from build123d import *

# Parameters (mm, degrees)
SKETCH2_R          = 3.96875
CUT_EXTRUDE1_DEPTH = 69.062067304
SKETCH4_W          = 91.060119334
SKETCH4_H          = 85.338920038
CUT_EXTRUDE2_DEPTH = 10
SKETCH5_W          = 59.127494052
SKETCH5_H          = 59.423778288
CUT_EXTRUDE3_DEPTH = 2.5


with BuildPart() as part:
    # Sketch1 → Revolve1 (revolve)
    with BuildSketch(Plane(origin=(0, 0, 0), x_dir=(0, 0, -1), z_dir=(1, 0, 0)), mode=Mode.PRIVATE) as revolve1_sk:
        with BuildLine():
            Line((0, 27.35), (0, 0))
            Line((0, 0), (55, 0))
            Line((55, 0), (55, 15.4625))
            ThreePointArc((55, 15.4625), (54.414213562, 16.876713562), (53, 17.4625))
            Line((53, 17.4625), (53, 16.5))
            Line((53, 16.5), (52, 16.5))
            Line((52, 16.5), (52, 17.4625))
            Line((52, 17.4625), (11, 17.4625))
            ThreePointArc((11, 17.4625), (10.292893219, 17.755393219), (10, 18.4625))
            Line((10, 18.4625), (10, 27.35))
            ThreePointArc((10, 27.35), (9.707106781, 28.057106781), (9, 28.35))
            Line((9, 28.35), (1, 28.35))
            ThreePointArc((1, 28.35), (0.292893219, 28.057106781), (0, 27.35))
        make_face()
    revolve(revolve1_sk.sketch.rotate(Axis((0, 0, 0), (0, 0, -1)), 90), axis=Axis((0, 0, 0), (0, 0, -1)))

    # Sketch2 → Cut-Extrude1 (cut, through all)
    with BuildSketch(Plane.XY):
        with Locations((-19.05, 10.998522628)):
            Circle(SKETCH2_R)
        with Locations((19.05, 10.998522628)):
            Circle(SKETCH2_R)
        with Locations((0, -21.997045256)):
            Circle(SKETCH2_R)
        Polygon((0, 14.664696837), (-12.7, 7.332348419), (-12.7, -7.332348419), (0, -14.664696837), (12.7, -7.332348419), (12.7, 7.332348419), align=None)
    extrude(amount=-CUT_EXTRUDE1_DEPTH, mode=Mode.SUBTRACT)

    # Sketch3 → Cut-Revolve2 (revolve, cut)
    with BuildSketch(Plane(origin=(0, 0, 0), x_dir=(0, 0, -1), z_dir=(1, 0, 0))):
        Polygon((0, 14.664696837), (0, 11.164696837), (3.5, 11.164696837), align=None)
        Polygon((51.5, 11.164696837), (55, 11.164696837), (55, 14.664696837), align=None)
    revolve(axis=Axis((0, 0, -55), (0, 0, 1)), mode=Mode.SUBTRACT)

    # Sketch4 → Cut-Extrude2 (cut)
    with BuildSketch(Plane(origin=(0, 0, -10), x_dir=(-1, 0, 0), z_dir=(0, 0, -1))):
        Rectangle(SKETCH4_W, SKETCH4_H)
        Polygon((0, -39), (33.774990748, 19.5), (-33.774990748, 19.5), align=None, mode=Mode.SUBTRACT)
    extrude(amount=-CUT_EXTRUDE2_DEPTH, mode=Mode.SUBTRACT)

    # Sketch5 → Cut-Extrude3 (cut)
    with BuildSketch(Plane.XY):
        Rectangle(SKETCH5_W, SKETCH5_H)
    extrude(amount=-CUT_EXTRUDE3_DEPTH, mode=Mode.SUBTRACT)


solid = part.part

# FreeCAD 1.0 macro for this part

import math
import FreeCAD as App
import Part
import Sketcher

V = App.Vector
Q = App.Units.Quantity

doc = App.newDocument("Part")
body = doc.addObject("PartDesign::Body", "Body")

# Sketch on YZ plane
sketch1 = doc.addObject("Sketcher::SketchObject", "Sketch")
body.addObject(sketch1)
sketch1.AttachmentSupport = (doc.YZ_Plane, [""])
sketch1.MapMode = "FlatFace"
sketch1.addGeometry(Part.LineSegment(V(27.4, 0, 0), V(0, 0, 0)), False)
sketch1.addGeometry(Part.LineSegment(V(0, 0, 0), V(0, -55, 0)), False)
sketch1.addGeometry(Part.LineSegment(V(0, -55, 0), V(15.5, -55, 0)), False)
sketch1.addGeometry(Part.ArcOfCircle(Part.Circle(V(15.5, -53, 0), V(0, 0, 1), 2), math.radians(-90), math.radians(0)), False)
sketch1.addGeometry(Part.LineSegment(V(17.5, -53, 0), V(16.5, -53, 0)), False)
sketch1.addGeometry(Part.LineSegment(V(16.5, -53, 0), V(16.5, -52, 0)), False)
sketch1.addGeometry(Part.LineSegment(V(16.5, -52, 0), V(17.5, -52, 0)), False)
sketch1.addGeometry(Part.LineSegment(V(17.5, -52, 0), V(17.5, -11, 0)), False)
sketch1.addGeometry(Part.ArcOfCircle(Part.Circle(V(18.5, -11, 0), V(0, 0, 1), 1), math.radians(90), math.radians(180)), False)
sketch1.addGeometry(Part.LineSegment(V(18.5, -10, 0), V(27.4, -10, 0)), False)
sketch1.addGeometry(Part.ArcOfCircle(Part.Circle(V(27.3, -9, 0), V(0, 0, 1), 1), math.radians(-90), math.radians(0)), False)
sketch1.addGeometry(Part.LineSegment(V(28.4, -9, 0), V(28.4, -1, 0)), False)
sketch1.addGeometry(Part.ArcOfCircle(Part.Circle(V(27.3, -1, 0), V(0, 0, 1), 1), math.radians(0), math.radians(90)), False)
sketch1.addConstraint(Sketcher.Constraint("Coincident", 0, 2, 1, 1))
sketch1.addConstraint(Sketcher.Constraint("Coincident", 1, 2, 2, 1))
sketch1.addConstraint(Sketcher.Constraint("Tangent", 2, 2, 3, 1))
sketch1.addConstraint(Sketcher.Constraint("Coincident", 3, 2, 4, 1))
sketch1.addConstraint(Sketcher.Constraint("Coincident", 4, 2, 5, 1))
sketch1.addConstraint(Sketcher.Constraint("Coincident", 5, 2, 6, 1))
sketch1.addConstraint(Sketcher.Constraint("Coincident", 6, 2, 7, 1))
sketch1.addConstraint(Sketcher.Constraint("Tangent", 7, 2, 8, 2))
sketch1.addConstraint(Sketcher.Constraint("Tangent", 8, 1, 9, 1))
sketch1.addConstraint(Sketcher.Constraint("Tangent", 9, 2, 10, 1))
sketch1.addConstraint(Sketcher.Constraint("Tangent", 10, 2, 11, 1))
sketch1.addConstraint(Sketcher.Constraint("Tangent", 11, 2, 12, 1))
sketch1.addConstraint(Sketcher.Constraint("Tangent", 12, 2, 0, 1))
sketch1.addConstraint(Sketcher.Constraint("Horizontal", 0))
sketch1.addConstraint(Sketcher.Constraint("Vertical", 1))
sketch1.addConstraint(Sketcher.Constraint("Horizontal", 2))
sketch1.addConstraint(Sketcher.Constraint("Horizontal", 4))
sketch1.addConstraint(Sketcher.Constraint("Vertical", 5))
sketch1.addConstraint(Sketcher.Constraint("Horizontal", 6))
sketch1.addConstraint(Sketcher.Constraint("Vertical", 7))
sketch1.addConstraint(Sketcher.Constraint("Horizontal", 9))
sketch1.addConstraint(Sketcher.Constraint("Vertical", 11))
sketch1.addConstraint(Sketcher.Constraint("Coincident", 0, 2, -1, 1))
sketch1.addConstraint(Sketcher.Constraint("Equal", 8, 10))
sketch1.addConstraint(Sketcher.Constraint("Equal", 10, 12))
sketch1.addConstraint(Sketcher.Constraint("Vertical", 3, 2, 6, 2))
sketch1.addConstraint(Sketcher.Constraint("Radius", 3, Q("2 mm")))
sketch1.addConstraint(Sketcher.Constraint("Radius", 8, Q("1 mm")))
sketch1.addConstraint(Sketcher.Constraint("DistanceY", 1, 2, 1, 1, Q("55 mm")))
sketch1.addConstraint(Sketcher.Constraint("DistanceY", 5, 1, 5, 2, Q("1 mm")))
sketch1.addConstraint(Sketcher.Constraint("DistanceY", 7, 1, 7, 2, Q("41 mm")))
sketch1.addConstraint(Sketcher.Constraint("DistanceY", 11, 1, 11, 2, Q("8 mm")))
sketch1.addConstraint(Sketcher.Constraint("DistanceX", 0, 2, 0, 1, Q("27.35 mm")))
sketch1.addConstraint(Sketcher.Constraint("DistanceX", -1, 1, 4, 2, Q("16.5 mm")))
sketch1.addConstraint(Sketcher.Constraint("DistanceX", 2, 1, 2, 2, Q("15.4625 mm")))
revolution = doc.addObject("PartDesign::Revolution", "Revolution")
body.addObject(revolution)
revolution.Profile = sketch1
revolution.ReferenceAxis = (sketch1, ["V_Axis"])
revolution.Angle = 360

# Sketch on XY plane
sketch2 = doc.addObject("Sketcher::SketchObject", "Sketch001")
body.addObject(sketch2)
sketch2.AttachmentSupport = (doc.XY_Plane, [""])
sketch2.MapMode = "FlatFace"
sketch2.addGeometry(Part.Circle(V(-19.1, 11, 0), V(0, 0, 1), 4), False)
sketch2.addGeometry(Part.Circle(V(19.1, 11, 0), V(0, 0, 1), 4), False)
sketch2.addGeometry(Part.Circle(V(0, -22, 0), V(0, 0, 1), 4), False)
sketch2.addGeometry(Part.LineSegment(V(0, 14.7, 0), V(-12.7, 7.3, 0)), False)
sketch2.addGeometry(Part.LineSegment(V(-12.7, 7.3, 0), V(-12.7, -7.3, 0)), False)
sketch2.addGeometry(Part.LineSegment(V(-12.7, -7.3, 0), V(0, -14.7, 0)), False)
sketch2.addGeometry(Part.LineSegment(V(0, -14.7, 0), V(12.7, -7.3, 0)), False)
sketch2.addGeometry(Part.LineSegment(V(12.7, -7.3, 0), V(12.7, 7.3, 0)), False)
sketch2.addGeometry(Part.LineSegment(V(12.7, 7.3, 0), V(0, 14.7, 0)), False)
sketch2.addConstraint(Sketcher.Constraint("Coincident", 3, 2, 4, 1))
sketch2.addConstraint(Sketcher.Constraint("Coincident", 4, 2, 5, 1))
sketch2.addConstraint(Sketcher.Constraint("Coincident", 5, 2, 6, 1))
sketch2.addConstraint(Sketcher.Constraint("Coincident", 6, 2, 7, 1))
sketch2.addConstraint(Sketcher.Constraint("Coincident", 7, 2, 8, 1))
sketch2.addConstraint(Sketcher.Constraint("Coincident", 8, 2, 3, 1))
sketch2.addConstraint(Sketcher.Constraint("Vertical", 4))
sketch2.addConstraint(Sketcher.Constraint("Vertical", 7))
sketch2.addConstraint(Sketcher.Constraint("Equal", 0, 1))
sketch2.addConstraint(Sketcher.Constraint("Equal", 1, 2))
sketch2.addConstraint(Sketcher.Constraint("Symmetric", 3, 2, 6, 2, -1, 1))
sketch2.addConstraint(Sketcher.Constraint("Symmetric", 5, 2, 8, 2, -1, 1))
sketch2.addConstraint(Sketcher.Constraint("Symmetric", 0, 3, 1, 3, -2))
sketch2.addConstraint(Sketcher.Constraint("PointOnObject", 2, 3, -2))
sketch2.addConstraint(Sketcher.Constraint("PointOnObject", 5, 2, -2))
sketch2.addConstraint(Sketcher.Constraint("Parallel", 5, 8))
sketch2.addConstraint(Sketcher.Constraint("Horizontal", 4, 2, 6, 2))
sketch2.addConstraint(Sketcher.Constraint("Angle", 3, Q("-150 deg")))
sketch2.addConstraint(Sketcher.Constraint("Diameter", 0, Q("7.9375 mm")))
sketch2.addConstraint(Sketcher.Constraint("DistanceX", 3, 2, -1, 1, Q("12.7 mm")))
sketch2.addConstraint(Sketcher.Constraint("DistanceX", 0, 3, 1, 3, Q("38.1 mm")))
sketch2.addConstraint(Sketcher.Constraint("DistanceY", 4, 2, 4, 1, Q("14.664697 mm")))
sketch2.addConstraint(Sketcher.Constraint("DistanceY", 4, 2, 0, 3, Q("18.330871 mm")))
sketch2.addConstraint(Sketcher.Constraint("DistanceY", 2, 3, 5, 2, Q("7.332348 mm")))
pocket1 = doc.addObject("PartDesign::Pocket", "Pocket")
body.addObject(pocket1)
pocket1.Profile = sketch2
pocket1.Type = "ThroughAll"

# Sketch on YZ plane
sketch3 = doc.addObject("Sketcher::SketchObject", "Sketch002")
body.addObject(sketch3)
sketch3.AttachmentSupport = (doc.YZ_Plane, [""])
sketch3.MapMode = "FlatFace"
sketch3.addGeometry(Part.LineSegment(V(14.7, 0, 0), V(11.2, 0, 0)), False)
sketch3.addGeometry(Part.LineSegment(V(11.2, 0, 0), V(11.2, -3.5, 0)), False)
sketch3.addGeometry(Part.LineSegment(V(11.2, -3.5, 0), V(14.7, 0, 0)), False)
sketch3.addGeometry(Part.LineSegment(V(11.2, -51.5, 0), V(11.2, -55, 0)), False)
sketch3.addGeometry(Part.LineSegment(V(11.2, -55, 0), V(14.7, -55, 0)), False)
sketch3.addGeometry(Part.LineSegment(V(14.7, -55, 0), V(11.2, -51.5, 0)), False)
sketch3.addConstraint(Sketcher.Constraint("Coincident", 0, 2, 1, 1))
sketch3.addConstraint(Sketcher.Constraint("Coincident", 1, 2, 2, 1))
sketch3.addConstraint(Sketcher.Constraint("Coincident", 2, 2, 0, 1))
sketch3.addConstraint(Sketcher.Constraint("Coincident", 3, 2, 4, 1))
sketch3.addConstraint(Sketcher.Constraint("Coincident", 4, 2, 5, 1))
sketch3.addConstraint(Sketcher.Constraint("Coincident", 5, 2, 3, 1))
sketch3.addConstraint(Sketcher.Constraint("Horizontal", 0))
sketch3.addConstraint(Sketcher.Constraint("Vertical", 1))
sketch3.addConstraint(Sketcher.Constraint("Vertical", 3))
sketch3.addConstraint(Sketcher.Constraint("Horizontal", 4))
sketch3.addConstraint(Sketcher.Constraint("PointOnObject", 0, 2, -1))
sketch3.addConstraint(Sketcher.Constraint("Perpendicular", 2, 5))
sketch3.addConstraint(Sketcher.Constraint("Vertical", 1, 2, 3, 2))
sketch3.addConstraint(Sketcher.Constraint("Vertical", 2, 2, 4, 2))
sketch3.addConstraint(Sketcher.Constraint("Equal", 4, 1))
sketch3.addConstraint(Sketcher.Constraint("DistanceX", 0, 2, 0, 1, Q("3.5 mm")))
sketch3.addConstraint(Sketcher.Constraint("DistanceY", 3, 2, -1, 1, Q("55 mm")))
sketch3.addConstraint(Sketcher.Constraint("DistanceX", -1, 1, 0, 2, Q("11.164697 mm")))
groove = doc.addObject("PartDesign::Groove", "Groove")
body.addObject(groove)
groove.Profile = sketch3
groove.ReferenceAxis = (sketch3, ["V_Axis"])
groove.Angle = 360

# Sketch on XY plane
sketch4 = doc.addObject("Sketcher::SketchObject", "Sketch003")
body.addObject(sketch4)
sketch4.AttachmentSupport = (doc.XY_Plane, [""])
sketch4.MapMode = "FlatFace"
sketch4.AttachmentOffset = App.Placement(V(0, 0, -10), App.Rotation())
sketch4.addGeometry(Part.LineSegment(V(46, 43, 0), V(46, -43, 0)), False)
sketch4.addGeometry(Part.LineSegment(V(46, -43, 0), V(-46, -43, 0)), False)
sketch4.addGeometry(Part.LineSegment(V(-46, -43, 0), V(-46, 43, 0)), False)
sketch4.addGeometry(Part.LineSegment(V(-46, 43, 0), V(46, 43, 0)), False)
sketch4.addGeometry(Part.LineSegment(V(-34, 20, 0), V(0, -39, 0)), False)
sketch4.addGeometry(Part.LineSegment(V(0, -39, 0), V(34, 20, 0)), False)
sketch4.addGeometry(Part.LineSegment(V(34, 20, 0), V(-34, 20, 0)), False)
sketch4.addConstraint(Sketcher.Constraint("Coincident", 0, 2, 1, 1))
sketch4.addConstraint(Sketcher.Constraint("Coincident", 1, 2, 2, 1))
sketch4.addConstraint(Sketcher.Constraint("Coincident", 2, 2, 3, 1))
sketch4.addConstraint(Sketcher.Constraint("Coincident", 3, 2, 0, 1))
sketch4.addConstraint(Sketcher.Constraint("Coincident", 4, 2, 5, 1))
sketch4.addConstraint(Sketcher.Constraint("Coincident", 5, 2, 6, 1))
sketch4.addConstraint(Sketcher.Constraint("Coincident", 6, 2, 4, 1))
sketch4.addConstraint(Sketcher.Constraint("Vertical", 0))
sketch4.addConstraint(Sketcher.Constraint("Horizontal", 1))
sketch4.addConstraint(Sketcher.Constraint("Vertical", 2))
sketch4.addConstraint(Sketcher.Constraint("Horizontal", 3))
sketch4.addConstraint(Sketcher.Constraint("Horizontal", 6))
sketch4.addConstraint(Sketcher.Constraint("Symmetric", 0, 2, 2, 2, -1, 1))
sketch4.addConstraint(Sketcher.Constraint("PointOnObject", 4, 2, -2))
sketch4.addConstraint(Sketcher.Constraint("Equal", 4, 5))
sketch4.addConstraint(Sketcher.Constraint("Angle", 4, Q("-60 deg")))
sketch4.addConstraint(Sketcher.Constraint("DistanceY", 4, 2, -1, 1, Q("39 mm")))
sketch4.addConstraint(Sketcher.Constraint("DistanceY", -1, 1, 5, 2, Q("19.5 mm")))
sketch4.addConstraint(Sketcher.Constraint("DistanceX", 1, 2, 1, 1, Q("91.060119 mm")))
sketch4.addConstraint(Sketcher.Constraint("DistanceY", 0, 2, 0, 1, Q("85.33892 mm")))
pocket2 = doc.addObject("PartDesign::Pocket", "Pocket001")
body.addObject(pocket2)
pocket2.Profile = sketch4
pocket2.Length = 10
pocket2.Reversed = True

# Sketch on XY plane
sketch5 = doc.addObject("Sketcher::SketchObject", "Sketch004")
body.addObject(sketch5)
sketch5.AttachmentSupport = (doc.XY_Plane, [""])
sketch5.MapMode = "FlatFace"
sketch5.addGeometry(Part.LineSegment(V(-30, 30, 0), V(-30, -30, 0)), False)
sketch5.addGeometry(Part.LineSegment(V(-30, -30, 0), V(30, -30, 0)), False)
sketch5.addGeometry(Part.LineSegment(V(30, -30, 0), V(30, 30, 0)), False)
sketch5.addGeometry(Part.LineSegment(V(30, 30, 0), V(-30, 30, 0)), False)
sketch5.addConstraint(Sketcher.Constraint("Coincident", 0, 2, 1, 1))
sketch5.addConstraint(Sketcher.Constraint("Coincident", 1, 2, 2, 1))
sketch5.addConstraint(Sketcher.Constraint("Coincident", 2, 2, 3, 1))
sketch5.addConstraint(Sketcher.Constraint("Coincident", 3, 2, 0, 1))
sketch5.addConstraint(Sketcher.Constraint("Vertical", 0))
sketch5.addConstraint(Sketcher.Constraint("Horizontal", 1))
sketch5.addConstraint(Sketcher.Constraint("Vertical", 2))
sketch5.addConstraint(Sketcher.Constraint("Horizontal", 3))
sketch5.addConstraint(Sketcher.Constraint("Symmetric", 0, 2, 2, 2, -1, 1))
sketch5.addConstraint(Sketcher.Constraint("DistanceY", 0, 2, 0, 1, Q("59.423778 mm")))
sketch5.addConstraint(Sketcher.Constraint("DistanceX", 1, 1, 1, 2, Q("59.127494 mm")))
pocket3 = doc.addObject("PartDesign::Pocket", "Pocket002")
body.addObject(pocket3)
pocket3.Profile = sketch5
pocket3.Length = 2.5

doc.recompute()
